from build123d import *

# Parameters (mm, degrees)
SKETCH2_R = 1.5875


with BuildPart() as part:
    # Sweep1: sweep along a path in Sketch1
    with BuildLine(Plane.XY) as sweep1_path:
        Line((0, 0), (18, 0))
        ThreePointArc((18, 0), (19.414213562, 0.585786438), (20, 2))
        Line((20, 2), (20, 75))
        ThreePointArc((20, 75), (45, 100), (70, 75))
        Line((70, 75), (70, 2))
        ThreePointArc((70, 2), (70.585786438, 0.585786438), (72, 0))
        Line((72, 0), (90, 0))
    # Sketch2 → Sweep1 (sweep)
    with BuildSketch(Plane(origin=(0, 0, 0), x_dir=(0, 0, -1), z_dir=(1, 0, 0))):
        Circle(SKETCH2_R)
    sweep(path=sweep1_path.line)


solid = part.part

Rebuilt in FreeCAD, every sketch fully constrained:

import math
import FreeCAD as App
import Part
import Sketcher

doc = App.newDocument("Part")
params = doc.addObject("Spreadsheet::Sheet", "Params")
for row, (alias, value) in enumerate([
    ("sketch2_radius", "2 mm"),
    ("sketch2_radius2", "25 mm"),
    ("sketch2_width", "18 mm"),
    ("sketch2_height", "73 mm"),
], start=1):
    params.set(f"A{row}", alias)
    params.set(f"B{row}", "=" + value)
    params.setAlias(f"B{row}", alias)

body = doc.addObject("PartDesign::Body", "Body")

sketch1 = doc.addObject("Sketcher::SketchObject", "Sketch")
body.addObject(sketch1)
sketch1.AttachmentSupport = (doc.YZ_Plane, [""])
sketch1.MapMode = "FlatFace"
sketch1.addGeometry(Part.Circle(App.Vector(0, 0, 0), App.Vector(0, 0, 1), 1.6), False)
sketch1.addConstraint(Sketcher.Constraint("Coincident", 0, 3, -1, 1))
sketch1.addConstraint(Sketcher.Constraint("Diameter", 0, 3.175))

sketch2 = doc.addObject("Sketcher::SketchObject", "Sketch001")
body.addObject(sketch2)
sketch2.AttachmentSupport = (doc.XY_Plane, [""])
sketch2.MapMode = "FlatFace"
sketch2.addGeometry(Part.LineSegment(App.Vector(0, 0, 0), App.Vector(18, 0, 0)), False)
sketch2.addGeometry(Part.ArcOfCircle(Part.Circle(App.Vector(18, 2, 0), App.Vector(0, 0, 1), 2), math.radians(-90), math.radians(0)), False)
sketch2.addGeometry(Part.LineSegment(App.Vector(20, 2, 0), App.Vector(20, 75, 0)), False)
sketch2.addGeometry(Part.ArcOfCircle(Part.Circle(App.Vector(45, 75, 0), App.Vector(0, 0, 1), 25), math.radians(0), math.radians(180)), False)
sketch2.addGeometry(Part.LineSegment(App.Vector(70, 75, 0), App.Vector(70, 2, 0)), False)
sketch2.addGeometry(Part.ArcOfCircle(Part.Circle(App.Vector(72, 2, 0), App.Vector(0, 0, 1), 2), math.radians(-180), math.radians(-90)), False)
sketch2.addGeometry(Part.LineSegment(App.Vector(72, 0, 0), App.Vector(90, 0, 0)), False)
sketch2.addConstraint(Sketcher.Constraint("Tangent", 0, 2, 1, 1))
sketch2.addConstraint(Sketcher.Constraint("Tangent", 1, 2, 2, 1))
sketch2.addConstraint(Sketcher.Constraint("Tangent", 2, 2, 3, 2))
sketch2.addConstraint(Sketcher.Constraint("Tangent", 3, 1, 4, 1))
sketch2.addConstraint(Sketcher.Constraint("Tangent", 4, 2, 5, 1))
sketch2.addConstraint(Sketcher.Constraint("Tangent", 5, 2, 6, 1))
sketch2.addConstraint(Sketcher.Constraint("Horizontal", 0))
sketch2.addConstraint(Sketcher.Constraint("Vertical", 2))
sketch2.addConstraint(Sketcher.Constraint("Vertical", 4))
sketch2.addConstraint(Sketcher.Constraint("Horizontal", 6))
sketch2.addConstraint(Sketcher.Constraint("Coincident", 0, 1, -1, 1))
sketch2.addConstraint(Sketcher.Constraint("Equal", 1, 5))
sketch2.addConstraint(Sketcher.Constraint("PointOnObject", 5, 2, -1))
sketch2.addConstraint(Sketcher.Constraint("Equal", 0, 6))
sketch2.addConstraint(Sketcher.Constraint("Radius", 1, 2.0))
sketch2.addConstraint(Sketcher.Constraint("Radius", 3, 25.0))
sketch2.addConstraint(Sketcher.Constraint("DistanceX", 0, 1, 0, 2, 18.0))
sketch2.addConstraint(Sketcher.Constraint("DistanceY", 2, 1, 2, 2, 73.0))
sketch2.setExpression("Constraints[14]", "Params.sketch2_radius")
sketch2.setExpression("Constraints[15]", "Params.sketch2_radius2")
sketch2.setExpression("Constraints[16]", "Params.sketch2_width")
sketch2.setExpression("Constraints[17]", "Params.sketch2_height")
doc.recompute()

additivepipe = doc.addObject("PartDesign::AdditivePipe", "AdditivePipe")
body.addObject(additivepipe)
additivepipe.Profile = sketch1
additivepipe.Spine = (sketch2, ["Edge1", "Edge2", "Edge3", "Edge4", "Edge5", "Edge6", "Edge7"])

doc.recompute()
